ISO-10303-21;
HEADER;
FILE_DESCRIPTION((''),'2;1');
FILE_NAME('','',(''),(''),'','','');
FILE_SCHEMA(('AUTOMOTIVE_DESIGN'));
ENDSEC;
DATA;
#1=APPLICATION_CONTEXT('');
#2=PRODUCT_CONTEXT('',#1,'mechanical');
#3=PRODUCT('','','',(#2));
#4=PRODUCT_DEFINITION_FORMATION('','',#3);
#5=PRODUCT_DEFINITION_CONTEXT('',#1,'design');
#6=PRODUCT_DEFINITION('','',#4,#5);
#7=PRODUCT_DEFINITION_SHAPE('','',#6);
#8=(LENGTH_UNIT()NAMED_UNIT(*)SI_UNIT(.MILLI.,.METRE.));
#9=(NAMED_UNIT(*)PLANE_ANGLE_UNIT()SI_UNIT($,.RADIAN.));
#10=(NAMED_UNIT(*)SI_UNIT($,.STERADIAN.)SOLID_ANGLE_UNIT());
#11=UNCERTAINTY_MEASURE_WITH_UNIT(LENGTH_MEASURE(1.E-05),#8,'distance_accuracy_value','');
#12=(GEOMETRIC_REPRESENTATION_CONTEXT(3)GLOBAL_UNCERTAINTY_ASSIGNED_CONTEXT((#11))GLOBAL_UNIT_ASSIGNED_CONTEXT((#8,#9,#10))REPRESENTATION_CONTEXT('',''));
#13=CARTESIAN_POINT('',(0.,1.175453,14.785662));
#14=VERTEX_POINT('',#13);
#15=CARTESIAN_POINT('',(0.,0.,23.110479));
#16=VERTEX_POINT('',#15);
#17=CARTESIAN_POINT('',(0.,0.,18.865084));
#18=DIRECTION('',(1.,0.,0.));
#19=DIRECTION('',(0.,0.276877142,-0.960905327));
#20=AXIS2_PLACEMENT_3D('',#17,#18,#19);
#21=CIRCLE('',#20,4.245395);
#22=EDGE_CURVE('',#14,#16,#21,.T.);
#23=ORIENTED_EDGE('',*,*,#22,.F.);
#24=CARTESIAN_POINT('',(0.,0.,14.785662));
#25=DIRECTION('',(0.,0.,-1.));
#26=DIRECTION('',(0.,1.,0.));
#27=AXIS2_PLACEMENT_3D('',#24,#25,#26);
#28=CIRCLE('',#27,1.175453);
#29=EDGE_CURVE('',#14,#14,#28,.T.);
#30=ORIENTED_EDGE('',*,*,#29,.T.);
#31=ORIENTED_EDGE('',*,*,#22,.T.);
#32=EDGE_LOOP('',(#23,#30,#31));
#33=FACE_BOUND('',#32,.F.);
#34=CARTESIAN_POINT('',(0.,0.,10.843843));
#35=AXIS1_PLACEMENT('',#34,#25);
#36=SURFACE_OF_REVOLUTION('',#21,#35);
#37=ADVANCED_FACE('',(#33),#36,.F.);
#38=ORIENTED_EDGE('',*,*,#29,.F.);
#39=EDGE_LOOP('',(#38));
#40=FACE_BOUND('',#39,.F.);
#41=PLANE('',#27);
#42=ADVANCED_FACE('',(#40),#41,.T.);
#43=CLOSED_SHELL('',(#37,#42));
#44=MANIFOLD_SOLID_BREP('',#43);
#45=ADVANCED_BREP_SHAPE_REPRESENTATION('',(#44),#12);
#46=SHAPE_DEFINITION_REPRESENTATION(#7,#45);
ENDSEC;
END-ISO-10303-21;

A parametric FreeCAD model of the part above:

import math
import FreeCAD as App
import Part
import Sketcher

V = App.Vector
Q = App.Units.Quantity

doc = App.newDocument("Part")
params = doc.addObject("Spreadsheet::Sheet", "Params")
for row, (alias, value) in enumerate([
    ("revolution_angle", "360 deg"),
], start=1):
    params.set(f"A{row}", alias)
    params.set(f"B{row}", "=" + value)
    params.setAlias(f"B{row}", alias)

body = doc.addObject("PartDesign::Body", "Body")

# Sketch on YZ plane
sketch1 = body.newObject("Sketcher::SketchObject", "Sketch")
sketch1.AttachmentSupport = (doc.getObject("YZ_Plane"), [""])
sketch1.MapMode = "FlatFace"
sketch1.addGeometry(Part.ArcOfCircle(Part.Circle(V(0, 18.9, 0), V(0, 0, 1), 4.2), math.radians(-74), math.radians(90)), False)
sketch1.addGeometry(Part.LineSegment(V(0, 23.1, 0), V(0, 14.8, 0)), False)
sketch1.addGeometry(Part.LineSegment(V(0, 14.8, 0), V(1.2, 14.8, 0)), False)
sketch1.addConstraint(Sketcher.Constraint("Coincident", 0, 2, 1, 1))
sketch1.addConstraint(Sketcher.Constraint("Coincident", 1, 2, 2, 1))
sketch1.addConstraint(Sketcher.Constraint("Coincident", 2, 2, 0, 1))
sketch1.addConstraint(Sketcher.Constraint("Vertical", 1))
sketch1.addConstraint(Sketcher.Constraint("Horizontal", 2))
sketch1.addConstraint(Sketcher.Constraint("PointOnObject", 0, 3, -2))
sketch1.addConstraint(Sketcher.Constraint("PointOnObject", 0, 2, -2))
sketch1.addConstraint(Sketcher.Constraint("Radius", 0, Q("4.245395 mm")))
sketch1.addConstraint(Sketcher.Constraint("DistanceX", 2, 1, 2, 2, Q("1.175453 mm")))
sketch1.addConstraint(Sketcher.Constraint("DistanceY", -1, 1, 0, 2, Q("23.110479 mm")))
revolution = body.newObject("PartDesign::Revolution", "Revolution")
revolution.Profile = sketch1
revolution.ReferenceAxis = (sketch1, ["V_Axis"])
revolution.setExpression("Angle", "Params.revolution_angle")

doc.recompute()
